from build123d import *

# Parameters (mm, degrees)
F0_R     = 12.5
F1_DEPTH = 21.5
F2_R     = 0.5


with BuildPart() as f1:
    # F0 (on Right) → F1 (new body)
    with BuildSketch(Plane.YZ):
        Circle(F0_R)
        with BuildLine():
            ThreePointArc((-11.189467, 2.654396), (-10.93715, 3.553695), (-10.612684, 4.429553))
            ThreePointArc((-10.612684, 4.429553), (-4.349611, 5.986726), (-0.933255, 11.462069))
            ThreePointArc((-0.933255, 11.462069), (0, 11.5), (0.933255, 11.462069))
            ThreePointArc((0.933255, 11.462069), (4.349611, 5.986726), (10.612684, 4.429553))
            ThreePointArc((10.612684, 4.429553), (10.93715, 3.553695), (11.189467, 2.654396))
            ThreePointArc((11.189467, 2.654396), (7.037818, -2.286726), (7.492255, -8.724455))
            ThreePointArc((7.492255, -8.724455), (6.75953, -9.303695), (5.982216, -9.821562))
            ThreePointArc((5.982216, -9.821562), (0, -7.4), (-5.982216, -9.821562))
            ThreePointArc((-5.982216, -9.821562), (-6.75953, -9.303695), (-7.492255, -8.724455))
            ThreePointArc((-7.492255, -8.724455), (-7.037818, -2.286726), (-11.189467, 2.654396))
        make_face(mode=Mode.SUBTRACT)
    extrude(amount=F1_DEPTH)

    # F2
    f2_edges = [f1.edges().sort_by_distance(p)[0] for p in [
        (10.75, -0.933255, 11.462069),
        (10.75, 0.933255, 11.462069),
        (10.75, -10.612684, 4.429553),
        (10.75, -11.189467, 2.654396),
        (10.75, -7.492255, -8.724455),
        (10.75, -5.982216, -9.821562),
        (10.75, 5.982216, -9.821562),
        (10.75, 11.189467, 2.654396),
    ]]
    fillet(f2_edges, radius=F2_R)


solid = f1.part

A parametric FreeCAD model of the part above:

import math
import FreeCAD as App
import Part
import Sketcher


def edges_at(feature, points):
    """Names of the edges that pass closest to the given points."""
    edges = feature.Shape.Edges
    near = lambda p: min(range(len(edges)), key=lambda i: edges[i].distToShape(Part.Vertex(*p))[0])
    return sorted({f"Edge{near(p) + 1}" for p in points})

doc = App.newDocument("Part")
body = doc.addObject("PartDesign::Body", "Body")

sketch1 = body.newObject("Sketcher::SketchObject", "Sketch")
sketch1.AttachmentSupport = (doc.getObject("YZ_Plane"), [""])
sketch1.MapMode = "FlatFace"
sketch1.addGeometry(Part.Circle(App.Vector(0, 0, 0), App.Vector(0, 0, 1), 12.5), False)
sketch1.addGeometry(Part.ArcOfCircle(Part.Circle(App.Vector(-15.216904, -4.944271, 0), App.Vector(0, 0, 1), 8.599999), math.radians(-26.075576), math.radians(62.075568)), False)
sketch1.addGeometry(Part.ArcOfCircle(Part.Circle(App.Vector(-0.000032, 0.000014, 0), App.Vector(0, 0, 1), 11.499966), math.radians(157.345178), math.radians(166.65485)), False)
sketch1.addGeometry(Part.ArcOfCircle(Part.Circle(App.Vector(-9.404564, 12.944272, 0), App.Vector(0, 0, 1), 8.6), math.radians(-98.075569), math.radians(-9.924437)), False)
sketch1.addGeometry(Part.ArcOfCircle(Part.Circle(App.Vector(0, 0.000123, 0), App.Vector(0, 0, 1), 11.499877), math.radians(85.345129), math.radians(94.654871)), False)
sketch1.addGeometry(Part.ArcOfCircle(Part.Circle(App.Vector(9.404564, 12.944272, 0), App.Vector(0, 0, 1), 8.6), math.radians(-170.075563), math.radians(-81.924431)), False)
sketch1.addGeometry(Part.ArcOfCircle(Part.Circle(App.Vector(0.000032, 0.000014, 0), App.Vector(0, 0, 1), 11.499966), math.radians(13.34515), math.radians(22.654822)), False)
sketch1.addGeometry(Part.ArcOfCircle(Part.Circle(App.Vector(15.216904, -4.944271, 0), App.Vector(0, 0, 1), 8.599999), math.radians(117.924432), math.radians(206.075576)), False)
sketch1.addGeometry(Part.ArcOfCircle(Part.Circle(App.Vector(-0.000057, 0.000084, 0), App.Vector(0, 0, 1), 11.500101), math.radians(-58.654795), math.radians(-49.345233)), False)
sketch1.addGeometry(Part.ArcOfCircle(Part.Circle(App.Vector(0, -16.000001, 0), App.Vector(0, 0, 1), 8.600001), math.radians(45.924438), math.radians(134.075562)), False)
sketch1.addGeometry(Part.ArcOfCircle(Part.Circle(App.Vector(0.000057, 0.000084, 0), App.Vector(0, 0, 1), 11.500101), math.radians(-130.654767), math.radians(-121.345205)), False)
sketch1.addConstraint(Sketcher.Constraint("Coincident", 1, 2, 2, 2))
sketch1.addConstraint(Sketcher.Constraint("Coincident", 2, 1, 3, 1))
sketch1.addConstraint(Sketcher.Constraint("Coincident", 3, 2, 4, 2))
sketch1.addConstraint(Sketcher.Constraint("Coincident", 4, 1, 5, 1))
sketch1.addConstraint(Sketcher.Constraint("Coincident", 5, 2, 6, 2))
sketch1.addConstraint(Sketcher.Constraint("Coincident", 6, 1, 7, 1))
sketch1.addConstraint(Sketcher.Constraint("Coincident", 7, 2, 8, 2))
sketch1.addConstraint(Sketcher.Constraint("Coincident", 8, 1, 9, 1))
sketch1.addConstraint(Sketcher.Constraint("Coincident", 9, 2, 10, 2))
sketch1.addConstraint(Sketcher.Constraint("Coincident", 10, 1, 1, 1))
sketch1.addConstraint(Sketcher.Constraint("Coincident", 0, 3, -1, 1))
sketch1.addConstraint(Sketcher.Constraint("Equal", 1, 3))
sketch1.addConstraint(Sketcher.Constraint("Equal", 3, 5))
sketch1.addConstraint(Sketcher.Constraint("Equal", 2, 6))
sketch1.addConstraint(Sketcher.Constraint("Equal", 5, 7))
sketch1.addConstraint(Sketcher.Constraint("Equal", 7, 9))
sketch1.addConstraint(Sketcher.Constraint("Equal", 8, 10))
sketch1.addConstraint(Sketcher.Constraint("Symmetric", 3, 3, 5, 3, -2))
sketch1.addConstraint(Sketcher.Constraint("Symmetric", 2, 3, 6, 3, -2))
sketch1.addConstraint(Sketcher.Constraint("Symmetric", 1, 3, 7, 3, -2))
sketch1.addConstraint(Sketcher.Constraint("Symmetric", 8, 3, 10, 3, -2))
sketch1.addConstraint(Sketcher.Constraint("PointOnObject", 4, 3, -2))
sketch1.addConstraint(Sketcher.Constraint("PointOnObject", 9, 3, -2))
sketch1.addConstraint(Sketcher.Constraint("Diameter", 0, 25.0))
sketch1.addConstraint(Sketcher.Constraint("Radius", 1, 8.599999))
sketch1.addConstraint(Sketcher.Constraint("DistanceY", 9, 3, -1, 1, 16.000001))
sketch1.addConstraint(Sketcher.Constraint("Radius", 8, 11.500101))
sketch1.addConstraint(Sketcher.Constraint("Radius", 2, 11.499966))
sketch1.addConstraint(Sketcher.Constraint("Radius", 4, 11.499877))
sketch1.addConstraint(Sketcher.Constraint("DistanceY", 1, 3, -1, 1, 4.944271))
sketch1.addConstraint(Sketcher.Constraint("DistanceY", -1, 1, 3, 2, 11.462069))
sketch1.addConstraint(Sketcher.Constraint("DistanceY", 8, 1, -1, 1, 9.821562))
sketch1.addConstraint(Sketcher.Constraint("DistanceX", 1, 3, 2, 3, 15.216872))
sketch1.addConstraint(Sketcher.Constraint("DistanceY", 2, 3, 3, 3, 12.944259))
sketch1.addConstraint(Sketcher.Constraint("DistanceX", 1, 3, 3, 3, 5.81234))
sketch1.addConstraint(Sketcher.Constraint("DistanceY", 2, 3, 4, 3, 0.00011))
sketch1.addConstraint(Sketcher.Constraint("DistanceY", 8, 3, 3, 3, 12.944188))
sketch1.addConstraint(Sketcher.Constraint("DistanceX", 1, 2, 8, 3, 11.18941))
pad1 = body.newObject("PartDesign::Pad", "Pad")
pad1.Profile = sketch1
pad1.Length = 21.5
doc.recompute()

fillet = body.newObject("PartDesign::Fillet", "Fillet")
fillet.Base = (pad1, edges_at(pad1, [
    (10.75, -0.933, 11.462),
    (10.75, 0.933, 11.462),
    (10.75, -10.613, 4.43),
    (10.75, -11.189, 2.654),
    (10.75, -7.492, -8.724),
    (10.75, -5.982, -9.822),
    (10.75, 5.982, -9.822),
    (10.75, 11.189, 2.654),
]))
fillet.Radius = 0.5

doc.recompute()
